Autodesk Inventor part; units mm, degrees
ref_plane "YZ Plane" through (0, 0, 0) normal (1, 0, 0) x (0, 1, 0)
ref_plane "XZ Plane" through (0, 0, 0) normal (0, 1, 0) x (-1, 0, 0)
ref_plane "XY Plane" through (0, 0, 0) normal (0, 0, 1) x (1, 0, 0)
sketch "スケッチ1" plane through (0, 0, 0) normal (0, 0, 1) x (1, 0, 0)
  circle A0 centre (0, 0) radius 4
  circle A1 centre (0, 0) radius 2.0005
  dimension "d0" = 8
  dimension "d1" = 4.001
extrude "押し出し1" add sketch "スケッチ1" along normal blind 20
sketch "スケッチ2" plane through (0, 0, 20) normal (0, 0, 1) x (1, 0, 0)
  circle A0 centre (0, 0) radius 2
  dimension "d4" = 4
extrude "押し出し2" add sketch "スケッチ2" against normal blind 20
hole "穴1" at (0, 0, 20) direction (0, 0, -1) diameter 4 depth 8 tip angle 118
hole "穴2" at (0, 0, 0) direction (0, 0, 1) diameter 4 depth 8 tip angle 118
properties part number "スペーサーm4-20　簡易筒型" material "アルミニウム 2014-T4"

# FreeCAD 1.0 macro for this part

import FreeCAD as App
import Part
import Sketcher
Q = App.Units.Quantity

doc = App.newDocument("Part")
body = doc.addObject("PartDesign::Body", "Body")
body.AllowCompound = True

# Sketch on XY plane
sketch1 = body.newObject("Sketcher::SketchObject", "Sketch")
sketch1.AttachmentSupport = (doc.getObject("XY_Plane"), [""])
sketch1.MapMode = "FlatFace"
sketch1.addGeometry([
    Part.Circle(App.Vector(0, 0, 0), App.Vector(0, 0, 1), 4),
    Part.Circle(App.Vector(0, 0, 0), App.Vector(0, 0, 1), 2),
], False)
sketch1.addConstraint([
    Sketcher.Constraint("Coincident", 0, 3, -1, 1),
    Sketcher.Constraint("Coincident", 1, 3, -1, 1),
    Sketcher.Constraint("Diameter", 0, Q("8 mm")),
    Sketcher.Constraint("Diameter", 1, Q("4.001 mm")),
])
pad1 = body.newObject("PartDesign::Pad", "Pad")
pad1.Profile = sketch1
pad1.Length = 20

# Sketch on XY plane
sketch2 = body.newObject("Sketcher::SketchObject", "Sketch001")
sketch2.AttachmentSupport = (doc.getObject("XY_Plane"), [""])
sketch2.MapMode = "FlatFace"
sketch2.AttachmentOffset = App.Placement(App.Vector(0, 0, 20), App.Rotation())
sketch2.addGeometry(Part.Circle(App.Vector(0, 0, 0), App.Vector(0, 0, 1), 2), False)
sketch2.addConstraint([
    Sketcher.Constraint("Coincident", 0, 3, -1, 1),
    Sketcher.Constraint("Diameter", 0, Q("4 mm")),
])
pad2 = body.newObject("PartDesign::Pad", "Pad001")
pad2.Profile = sketch2
pad2.Length = 20
pad2.Reversed = True

# Sketch on XY plane
sketch3 = body.newObject("Sketcher::SketchObject", "Sketch002")
sketch3.AttachmentSupport = (doc.getObject("XY_Plane"), [""])
sketch3.MapMode = "FlatFace"
sketch3.AttachmentOffset = App.Placement(App.Vector(0, 0, 20), App.Rotation())
sketch3.addGeometry(Part.Circle(App.Vector(0, 0, 0), App.Vector(0, 0, 1), 2), False)
sketch3.addConstraint([
    Sketcher.Constraint("Coincident", 0, 3, -1, 1),
    Sketcher.Constraint("Diameter", 0, Q("4 mm")),
])
doc.recompute()
hole = body.newObject("PartDesign::Hole", "Hole")
hole.Profile = sketch3
hole.ThreadType = "None"
hole.Diameter = 4
hole.DepthType = "Dimension"
hole.Depth = 8
hole.DrillPoint = "Angled"
hole.DrillPointAngle = 118

# Sketch on XY plane
sketch4 = body.newObject("Sketcher::SketchObject", "Sketch003")
sketch4.AttachmentSupport = (doc.getObject("XY_Plane"), [""])
sketch4.MapMode = "FlatFace"
sketch4.addGeometry(Part.Circle(App.Vector(0, 0, 0), App.Vector(0, 0, 1), 2), False)
sketch4.addConstraint([
    Sketcher.Constraint("Coincident", 0, 3, -1, 1),
    Sketcher.Constraint("Diameter", 0, Q("4 mm")),
])
doc.recompute()
hole2 = body.newObject("PartDesign::Hole", "Hole001")
hole2.Profile = sketch4
hole2.ThreadType = "None"
hole2.Diameter = 4
hole2.DepthType = "Dimension"
hole2.Depth = 8
hole2.DrillPoint = "Angled"
hole2.DrillPointAngle = 118
hole2.Reversed = True

doc.recompute()
